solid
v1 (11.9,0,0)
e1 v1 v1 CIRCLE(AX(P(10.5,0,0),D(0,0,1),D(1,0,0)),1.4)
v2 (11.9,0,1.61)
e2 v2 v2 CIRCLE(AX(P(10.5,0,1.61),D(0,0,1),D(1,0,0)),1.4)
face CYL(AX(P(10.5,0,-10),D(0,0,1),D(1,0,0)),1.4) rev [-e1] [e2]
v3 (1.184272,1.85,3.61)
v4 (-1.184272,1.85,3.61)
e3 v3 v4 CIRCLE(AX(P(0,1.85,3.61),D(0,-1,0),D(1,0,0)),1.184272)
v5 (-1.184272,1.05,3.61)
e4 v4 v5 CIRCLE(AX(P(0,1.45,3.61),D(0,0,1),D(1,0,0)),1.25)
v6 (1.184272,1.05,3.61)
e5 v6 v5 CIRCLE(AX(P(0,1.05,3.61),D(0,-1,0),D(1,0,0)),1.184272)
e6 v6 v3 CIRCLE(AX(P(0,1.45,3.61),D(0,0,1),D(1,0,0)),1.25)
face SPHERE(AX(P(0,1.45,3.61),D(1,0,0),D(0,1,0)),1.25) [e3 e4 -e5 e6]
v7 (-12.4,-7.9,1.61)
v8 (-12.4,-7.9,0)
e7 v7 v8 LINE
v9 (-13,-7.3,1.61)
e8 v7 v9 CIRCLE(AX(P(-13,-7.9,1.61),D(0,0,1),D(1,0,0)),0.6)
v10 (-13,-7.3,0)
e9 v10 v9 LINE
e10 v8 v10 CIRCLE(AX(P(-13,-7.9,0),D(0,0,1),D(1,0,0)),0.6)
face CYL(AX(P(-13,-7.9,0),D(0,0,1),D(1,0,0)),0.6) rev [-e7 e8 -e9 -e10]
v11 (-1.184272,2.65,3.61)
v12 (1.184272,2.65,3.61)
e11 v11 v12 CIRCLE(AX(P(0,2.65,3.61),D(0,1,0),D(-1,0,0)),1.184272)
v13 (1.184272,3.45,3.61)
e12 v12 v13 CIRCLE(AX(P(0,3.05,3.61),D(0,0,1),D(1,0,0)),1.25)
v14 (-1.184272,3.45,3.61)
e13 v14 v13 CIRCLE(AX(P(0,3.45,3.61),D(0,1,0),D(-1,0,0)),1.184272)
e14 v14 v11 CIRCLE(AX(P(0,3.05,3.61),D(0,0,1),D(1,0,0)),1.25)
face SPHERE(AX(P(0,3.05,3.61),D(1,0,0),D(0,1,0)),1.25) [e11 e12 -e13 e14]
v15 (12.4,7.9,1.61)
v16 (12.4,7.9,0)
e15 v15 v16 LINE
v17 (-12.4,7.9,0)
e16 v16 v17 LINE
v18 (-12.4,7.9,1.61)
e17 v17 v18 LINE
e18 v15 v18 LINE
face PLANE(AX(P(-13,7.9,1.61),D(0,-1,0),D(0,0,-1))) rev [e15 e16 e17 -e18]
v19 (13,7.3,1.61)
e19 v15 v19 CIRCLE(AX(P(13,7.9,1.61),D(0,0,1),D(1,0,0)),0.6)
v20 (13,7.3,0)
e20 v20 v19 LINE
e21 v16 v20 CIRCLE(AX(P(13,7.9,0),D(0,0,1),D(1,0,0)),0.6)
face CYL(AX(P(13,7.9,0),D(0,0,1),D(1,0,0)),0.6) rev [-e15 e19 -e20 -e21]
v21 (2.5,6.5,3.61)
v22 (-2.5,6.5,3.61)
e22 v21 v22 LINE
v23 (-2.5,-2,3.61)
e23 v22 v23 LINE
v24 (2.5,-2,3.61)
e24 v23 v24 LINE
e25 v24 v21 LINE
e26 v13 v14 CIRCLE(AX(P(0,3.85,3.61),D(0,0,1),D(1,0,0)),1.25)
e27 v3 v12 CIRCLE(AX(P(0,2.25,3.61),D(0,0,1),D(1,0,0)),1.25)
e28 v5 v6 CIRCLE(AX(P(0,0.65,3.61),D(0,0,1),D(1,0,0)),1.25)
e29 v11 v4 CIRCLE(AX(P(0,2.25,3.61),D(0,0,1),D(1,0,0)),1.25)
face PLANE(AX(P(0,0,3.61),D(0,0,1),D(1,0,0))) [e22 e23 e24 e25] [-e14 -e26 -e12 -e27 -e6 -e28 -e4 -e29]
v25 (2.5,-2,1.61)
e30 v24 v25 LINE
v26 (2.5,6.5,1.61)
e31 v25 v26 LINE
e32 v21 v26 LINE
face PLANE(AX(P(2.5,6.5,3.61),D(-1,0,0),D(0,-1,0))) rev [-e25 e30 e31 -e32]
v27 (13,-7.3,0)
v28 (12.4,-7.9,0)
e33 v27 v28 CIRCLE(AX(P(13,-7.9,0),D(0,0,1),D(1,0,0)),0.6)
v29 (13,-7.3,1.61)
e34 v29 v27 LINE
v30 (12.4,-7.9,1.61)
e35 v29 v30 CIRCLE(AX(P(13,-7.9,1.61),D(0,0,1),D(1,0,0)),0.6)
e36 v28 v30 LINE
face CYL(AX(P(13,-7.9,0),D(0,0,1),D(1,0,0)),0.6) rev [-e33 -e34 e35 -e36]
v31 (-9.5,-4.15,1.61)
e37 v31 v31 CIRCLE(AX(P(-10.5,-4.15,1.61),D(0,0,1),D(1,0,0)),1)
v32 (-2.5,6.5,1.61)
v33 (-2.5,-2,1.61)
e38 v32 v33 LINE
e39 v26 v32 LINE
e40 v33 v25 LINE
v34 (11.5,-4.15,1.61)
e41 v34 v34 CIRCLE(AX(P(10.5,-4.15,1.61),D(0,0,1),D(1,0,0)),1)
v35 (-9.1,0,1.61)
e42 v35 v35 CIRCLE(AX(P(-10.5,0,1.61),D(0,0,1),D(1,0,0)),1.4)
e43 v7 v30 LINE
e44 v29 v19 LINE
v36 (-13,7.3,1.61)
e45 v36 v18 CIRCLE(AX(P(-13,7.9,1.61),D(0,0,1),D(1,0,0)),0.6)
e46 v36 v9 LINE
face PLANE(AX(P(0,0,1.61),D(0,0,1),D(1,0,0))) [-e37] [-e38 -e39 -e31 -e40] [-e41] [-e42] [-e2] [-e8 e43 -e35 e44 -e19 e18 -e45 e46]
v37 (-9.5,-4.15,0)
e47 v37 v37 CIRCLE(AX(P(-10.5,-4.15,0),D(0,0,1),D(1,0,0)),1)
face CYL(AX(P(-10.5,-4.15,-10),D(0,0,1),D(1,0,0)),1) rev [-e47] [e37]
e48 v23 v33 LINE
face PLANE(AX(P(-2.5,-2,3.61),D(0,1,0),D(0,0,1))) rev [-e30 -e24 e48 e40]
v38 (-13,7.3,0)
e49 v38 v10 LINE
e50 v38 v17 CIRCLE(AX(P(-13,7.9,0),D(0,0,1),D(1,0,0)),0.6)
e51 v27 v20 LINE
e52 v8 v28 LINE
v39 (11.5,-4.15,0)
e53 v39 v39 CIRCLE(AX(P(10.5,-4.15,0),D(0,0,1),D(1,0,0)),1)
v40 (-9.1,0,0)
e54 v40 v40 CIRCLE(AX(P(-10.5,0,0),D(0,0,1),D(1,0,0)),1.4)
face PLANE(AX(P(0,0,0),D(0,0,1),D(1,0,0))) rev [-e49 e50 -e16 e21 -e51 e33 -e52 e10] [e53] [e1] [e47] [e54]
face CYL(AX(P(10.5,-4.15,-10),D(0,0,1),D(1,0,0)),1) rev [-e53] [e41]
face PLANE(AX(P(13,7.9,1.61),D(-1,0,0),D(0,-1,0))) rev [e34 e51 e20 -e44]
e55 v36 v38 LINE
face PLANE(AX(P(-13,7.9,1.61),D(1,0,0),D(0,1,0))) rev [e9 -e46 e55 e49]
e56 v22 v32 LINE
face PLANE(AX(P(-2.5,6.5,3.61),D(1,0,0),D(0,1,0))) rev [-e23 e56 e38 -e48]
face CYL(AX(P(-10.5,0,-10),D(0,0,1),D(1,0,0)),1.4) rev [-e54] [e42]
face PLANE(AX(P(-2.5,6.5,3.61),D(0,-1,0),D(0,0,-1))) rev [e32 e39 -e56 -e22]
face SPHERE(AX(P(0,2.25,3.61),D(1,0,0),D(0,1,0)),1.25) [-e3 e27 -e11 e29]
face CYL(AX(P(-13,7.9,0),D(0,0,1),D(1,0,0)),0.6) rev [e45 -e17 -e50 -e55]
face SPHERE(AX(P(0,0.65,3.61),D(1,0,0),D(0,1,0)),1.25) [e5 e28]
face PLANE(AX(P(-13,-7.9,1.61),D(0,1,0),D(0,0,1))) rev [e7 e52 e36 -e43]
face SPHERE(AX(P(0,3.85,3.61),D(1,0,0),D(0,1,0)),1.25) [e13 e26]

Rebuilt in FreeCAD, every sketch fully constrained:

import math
import FreeCAD as App
import Part
import Sketcher

V = App.Vector
Q = App.Units.Quantity


def add_polygon(sketch, points):
    """Adds a closed chain of lines whose ends are joined by coincident constraints."""
    first, n = sketch.GeometryCount, len(points)
    for a, b in zip(points, points[1:] + points[:1]):
        sketch.addGeometry(Part.LineSegment(App.Vector(*a, 0), App.Vector(*b, 0)), False)
    for i in range(n):
        sketch.addConstraint(Sketcher.Constraint("Coincident", first + i, 2, first + (i + 1) % n, 1))

doc = App.newDocument("Part")
params = doc.addObject("Spreadsheet::Sheet", "Params")
for row, (alias, value) in enumerate([
    ("sketch1_width", "26 mm"),
    ("sketch1_height", "15.8 mm"),
    ("pad1_length", "1.61 mm"),
    ("sketch2_diameter", "1.2 mm"),
    ("pocket1_length", "1.61 mm"),
    ("sketch3_diameter", "2 mm"),
    ("sketch3_diameter2", "2.8 mm"),
    ("pocket2_length", "11.61 mm"),
    ("sketch4_width", "5 mm"),
    ("sketch4_height", "8.5 mm"),
    ("pad2_length", "2 mm"),
    ("sketch5_radius", "1.25 mm"),
    ("revolution_angle", "360 deg"),
    ("linearpattern_pitch", "0.8 mm"),
    ("linearpattern2_pitch", "0.8 mm"),
], start=1):
    params.set(f"A{row}", alias)
    params.set(f"B{row}", "=" + value)
    params.setAlias(f"B{row}", alias)

body = doc.addObject("PartDesign::Body", "Body")

sketch1 = body.newObject("Sketcher::SketchObject", "Sketch")
sketch1.AttachmentSupport = (doc.getObject("XY_Plane"), [""])
sketch1.MapMode = "FlatFace"
add_polygon(sketch1, [(-13, 7.9), (-13, -7.9), (13, -7.9), (13, 7.9)])
sketch1.addConstraint([
    Sketcher.Constraint("Vertical", 0),
    Sketcher.Constraint("Horizontal", 1),
    Sketcher.Constraint("Vertical", 2),
    Sketcher.Constraint("Horizontal", 3),
    Sketcher.Constraint("Symmetric", 0, 2, 2, 2, -1, 1),
    Sketcher.Constraint("DistanceX", 1, 1, 1, 2, Q("26 mm")),
    Sketcher.Constraint("DistanceY", 0, 2, 0, 1, Q("15.8 mm")),
])
sketch1.setExpression("Constraints[9]", "Params.sketch1_width")
sketch1.setExpression("Constraints[10]", "Params.sketch1_height")
pad1 = body.newObject("PartDesign::Pad", "Pad")
pad1.Profile = sketch1
pad1.setExpression("Length", "Params.pad1_length")

sketch2 = body.newObject("Sketcher::SketchObject", "Sketch001")
sketch2.AttachmentSupport = (doc.getObject("XY_Plane"), [""])
sketch2.MapMode = "FlatFace"
sketch2.AttachmentOffset = App.Placement(V(0, 0, 1.61), App.Rotation())
sketch2.addGeometry([
    Part.Circle(V(-13, 7.9, 0), V(0, 0, 1), 0.6),
    Part.Circle(V(-13, -7.9, 0), V(0, 0, 1), 0.6),
    Part.Circle(V(13, -7.9, 0), V(0, 0, 1), 0.6),
    Part.Circle(V(13, 7.9, 0), V(0, 0, 1), 0.6),
], False)
sketch2.addConstraint([
    Sketcher.Constraint("Equal", 0, 1),
    Sketcher.Constraint("Equal", 1, 2),
    Sketcher.Constraint("Equal", 2, 3),
    Sketcher.Constraint("Symmetric", 0, 3, 2, 3, -1, 1),
    Sketcher.Constraint("Symmetric", 1, 3, 3, 3, -1, 1),
    Sketcher.Constraint("Symmetric", 1, 3, 2, 3, -2),
    Sketcher.Constraint("Diameter", 0, Q("1.2 mm")),
    Sketcher.Constraint("DistanceX", 0, 3, -1, 1, Q("13 mm")),
    Sketcher.Constraint("DistanceY", -1, 1, 0, 3, Q("7.9 mm")),
])
sketch2.setExpression("Constraints[6]", "Params.sketch2_diameter")
pocket1 = body.newObject("PartDesign::Pocket", "Pocket")
pocket1.Profile = sketch2
pocket1.setExpression("Length", "Params.pocket1_length")

sketch3 = body.newObject("Sketcher::SketchObject", "Sketch002")
sketch3.AttachmentSupport = (doc.getObject("XY_Plane"), [""])
sketch3.MapMode = "FlatFace"
sketch3.AttachmentOffset = App.Placement(V(0, 0, 1.61), App.Rotation())
sketch3.addGeometry([
    Part.Circle(V(-10.5, 0, 0), V(0, 0, 1), 1.4),
    Part.Circle(V(10.5, 0, 0), V(0, 0, 1), 1.4),
    Part.Circle(V(-10.5, -4.15, 0), V(0, 0, 1), 1),
    Part.Circle(V(10.5, -4.15, 0), V(0, 0, 1), 1),
], False)
sketch3.addConstraint([
    Sketcher.Constraint("Equal", 0, 1),
    Sketcher.Constraint("Equal", 2, 3),
    Sketcher.Constraint("Symmetric", 0, 3, 1, 3, -1, 1),
    Sketcher.Constraint("Symmetric", 2, 3, 3, 3, -2),
    Sketcher.Constraint("PointOnObject", 0, 3, -1),
    Sketcher.Constraint("Vertical", 0, 3, 2, 3),
    Sketcher.Constraint("Diameter", 2, Q("2 mm")),
    Sketcher.Constraint("Diameter", 0, Q("2.8 mm")),
    Sketcher.Constraint("DistanceX", 0, 3, 1, 3, Q("21 mm")),
    Sketcher.Constraint("DistanceY", 2, 3, -1, 1, Q("4.15 mm")),
])
sketch3.setExpression("Constraints[6]", "Params.sketch3_diameter")
sketch3.setExpression("Constraints[7]", "Params.sketch3_diameter2")
pocket2 = body.newObject("PartDesign::Pocket", "Pocket001")
pocket2.Profile = sketch3
pocket2.setExpression("Length", "Params.pocket2_length")

sketch4 = body.newObject("Sketcher::SketchObject", "Sketch003")
sketch4.AttachmentSupport = (doc.getObject("XY_Plane"), [""])
sketch4.MapMode = "FlatFace"
sketch4.AttachmentOffset = App.Placement(V(0, 0, 1.61), App.Rotation())
add_polygon(sketch4, [(-2.5, 6.5), (-2.5, -2), (2.5, -2), (2.5, 6.5)])
sketch4.addConstraint([
    Sketcher.Constraint("Vertical", 0),
    Sketcher.Constraint("Horizontal", 1),
    Sketcher.Constraint("Vertical", 2),
    Sketcher.Constraint("Horizontal", 3),
    Sketcher.Constraint("DistanceX", 1, 1, 1, 2, Q("5 mm")),
    Sketcher.Constraint("DistanceY", 0, 2, 0, 1, Q("8.5 mm")),
    Sketcher.Constraint("DistanceY", 0, 2, -1, 1, Q("2 mm")),
    Sketcher.Constraint("DistanceX", 0, 2, -1, 1, Q("2.5 mm")),
])
sketch4.setExpression("Constraints[8]", "Params.sketch4_width")
sketch4.setExpression("Constraints[9]", "Params.sketch4_height")
pad2 = body.newObject("PartDesign::Pad", "Pad001")
pad2.Profile = sketch4
pad2.setExpression("Length", "Params.pad2_length")

sketch5 = body.newObject("Sketcher::SketchObject", "Sketch004")
sketch5.AttachmentSupport = (doc.getObject("XY_Plane"), [""])
sketch5.MapMode = "FlatFace"
sketch5.AttachmentOffset = App.Placement(V(0, 0, 3.61), App.Rotation())
sketch5.addGeometry([
    Part.LineSegment(V(-1.25, 2.25, 0), V(1.25, 2.25, 0)),
    Part.ArcOfCircle(Part.Circle(V(0, 2.25, 0), V(0, 0, 1), 1.25), math.radians(0), math.radians(180)),
], False)
sketch5.addGeometry(Part.LineSegment(V(1.25, 2.25, 0), V(-1.25, 2.25, 0)), True)
sketch5.addConstraint([
    Sketcher.Constraint("Coincident", 0, 1, 1, 2),
    Sketcher.Constraint("Coincident", 1, 1, 0, 2),
    Sketcher.Constraint("Horizontal", 0),
    Sketcher.Constraint("Horizontal", 2),
    Sketcher.Constraint("Coincident", 2, 1, 1, 1),
    Sketcher.Constraint("PointOnObject", 1, 3, -2),
    Sketcher.Constraint("Horizontal", 1, 3, 0, 1),
    Sketcher.Constraint("Equal", 0, 2),
    Sketcher.Constraint("Radius", 1, Q("1.25 mm")),
    Sketcher.Constraint("DistanceY", -1, 1, 1, 3, Q("2.25 mm")),
])
sketch5.setExpression("Constraints[8]", "Params.sketch5_radius")
revolution = body.newObject("PartDesign::Revolution", "Revolution")
revolution.Profile = sketch5
revolution.ReferenceAxis = (sketch5, ["Axis0"])
revolution.setExpression("Angle", "Params.revolution_angle")
doc.recompute()

linearpattern = body.newObject("PartDesign::LinearPattern", "LinearPattern")
linearpattern.Originals = [revolution]
linearpattern.Direction = (doc.getObject("Y_Axis"), [""])
linearpattern.Mode = "offset"
linearpattern.setExpression("Offset", "Params.linearpattern_pitch")
linearpattern.Occurrences = 3
linearpattern.Reversed = True
body.Tip = linearpattern
doc.recompute()

linearpattern2 = body.newObject("PartDesign::LinearPattern", "LinearPattern001")
linearpattern2.Originals = [revolution]
linearpattern2.Direction = (doc.getObject("Y_Axis"), [""])
linearpattern2.Mode = "offset"
linearpattern2.setExpression("Offset", "Params.linearpattern2_pitch")
linearpattern2.Occurrences = 3
body.Tip = linearpattern2

doc.recompute()
